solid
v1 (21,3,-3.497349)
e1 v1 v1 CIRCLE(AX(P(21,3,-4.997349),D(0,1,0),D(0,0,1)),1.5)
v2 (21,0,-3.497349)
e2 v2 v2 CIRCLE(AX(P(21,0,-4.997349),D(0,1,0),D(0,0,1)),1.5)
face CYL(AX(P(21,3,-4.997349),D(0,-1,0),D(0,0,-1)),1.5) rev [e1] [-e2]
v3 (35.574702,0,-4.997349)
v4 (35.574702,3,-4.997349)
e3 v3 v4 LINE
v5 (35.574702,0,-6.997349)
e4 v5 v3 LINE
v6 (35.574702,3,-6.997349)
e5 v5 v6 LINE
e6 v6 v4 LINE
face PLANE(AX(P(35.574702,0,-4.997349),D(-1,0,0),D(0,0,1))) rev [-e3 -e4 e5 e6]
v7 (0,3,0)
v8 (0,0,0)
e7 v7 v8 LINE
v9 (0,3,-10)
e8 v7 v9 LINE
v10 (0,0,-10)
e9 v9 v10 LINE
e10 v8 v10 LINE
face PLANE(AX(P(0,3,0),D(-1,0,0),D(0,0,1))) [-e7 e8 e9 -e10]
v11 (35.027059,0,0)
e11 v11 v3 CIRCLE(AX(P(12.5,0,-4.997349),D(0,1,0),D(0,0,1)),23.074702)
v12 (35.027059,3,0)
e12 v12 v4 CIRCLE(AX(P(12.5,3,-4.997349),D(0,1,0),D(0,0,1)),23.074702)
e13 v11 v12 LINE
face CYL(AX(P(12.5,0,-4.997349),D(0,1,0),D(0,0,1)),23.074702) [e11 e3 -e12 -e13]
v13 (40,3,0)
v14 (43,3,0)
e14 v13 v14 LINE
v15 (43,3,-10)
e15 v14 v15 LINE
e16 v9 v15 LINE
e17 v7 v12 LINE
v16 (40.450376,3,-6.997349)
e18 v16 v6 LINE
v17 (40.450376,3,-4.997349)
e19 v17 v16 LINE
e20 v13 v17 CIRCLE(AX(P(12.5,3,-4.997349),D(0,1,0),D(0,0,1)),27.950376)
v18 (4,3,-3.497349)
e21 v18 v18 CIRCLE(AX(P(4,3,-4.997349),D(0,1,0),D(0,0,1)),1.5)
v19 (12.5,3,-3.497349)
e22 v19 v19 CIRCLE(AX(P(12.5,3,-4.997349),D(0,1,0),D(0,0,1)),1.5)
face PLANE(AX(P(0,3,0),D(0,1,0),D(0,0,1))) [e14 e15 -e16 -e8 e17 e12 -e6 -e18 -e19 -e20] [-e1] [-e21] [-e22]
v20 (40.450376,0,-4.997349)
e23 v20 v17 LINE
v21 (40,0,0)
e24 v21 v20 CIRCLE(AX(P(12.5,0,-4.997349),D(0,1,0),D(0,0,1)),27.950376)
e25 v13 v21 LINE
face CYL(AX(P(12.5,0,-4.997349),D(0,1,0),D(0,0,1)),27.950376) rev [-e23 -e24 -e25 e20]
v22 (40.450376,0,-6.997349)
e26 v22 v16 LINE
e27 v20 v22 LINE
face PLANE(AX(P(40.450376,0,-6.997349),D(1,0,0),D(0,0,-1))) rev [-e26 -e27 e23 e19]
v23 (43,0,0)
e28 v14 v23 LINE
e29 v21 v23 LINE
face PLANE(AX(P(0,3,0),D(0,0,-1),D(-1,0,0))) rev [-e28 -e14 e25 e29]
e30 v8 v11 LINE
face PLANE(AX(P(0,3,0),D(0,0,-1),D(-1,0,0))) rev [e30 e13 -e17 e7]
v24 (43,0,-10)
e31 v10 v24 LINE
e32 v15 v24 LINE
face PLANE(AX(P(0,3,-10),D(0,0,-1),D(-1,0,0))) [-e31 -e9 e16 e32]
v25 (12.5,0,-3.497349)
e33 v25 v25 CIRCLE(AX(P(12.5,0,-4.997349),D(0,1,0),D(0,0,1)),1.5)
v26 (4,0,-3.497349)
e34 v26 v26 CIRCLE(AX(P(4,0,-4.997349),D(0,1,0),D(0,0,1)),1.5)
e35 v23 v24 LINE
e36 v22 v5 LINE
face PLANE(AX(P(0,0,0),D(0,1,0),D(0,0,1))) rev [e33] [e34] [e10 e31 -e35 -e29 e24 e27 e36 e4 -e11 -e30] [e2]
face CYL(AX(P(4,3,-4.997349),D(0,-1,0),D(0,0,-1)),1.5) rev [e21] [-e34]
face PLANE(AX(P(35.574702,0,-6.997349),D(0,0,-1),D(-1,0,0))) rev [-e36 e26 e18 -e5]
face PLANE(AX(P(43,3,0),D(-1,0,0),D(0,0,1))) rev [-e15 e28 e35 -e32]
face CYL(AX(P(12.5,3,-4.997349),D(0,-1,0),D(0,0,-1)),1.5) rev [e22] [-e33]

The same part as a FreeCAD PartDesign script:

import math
import FreeCAD as App
import Part
import Sketcher
from FreeCAD import Vector
Q = App.Units.Quantity

doc = App.newDocument("Part")
body = doc.addObject("PartDesign::Body", "Body")

sketch1 = body.newObject("Sketcher::SketchObject", "Sketch")
sketch1.AttachmentSupport = (doc.getObject("XZ_Plane"), [""])
sketch1.MapMode = "FlatFace"
sketch1.addGeometry([
    Part.LineSegment(Vector(0, 0, 0), Vector(36.5, 0, 0)),
    Part.LineSegment(Vector(36.5, 0, 0), Vector(36.5, -2.8, 0)),
    Part.LineSegment(Vector(36.5, -2.8, 0), Vector(40, -2.8, 0)),
    Part.LineSegment(Vector(40, -2.8, 0), Vector(40, 0, 0)),
    Part.LineSegment(Vector(40, 0, 0), Vector(43, 0, 0)),
    Part.LineSegment(Vector(43, 0, 0), Vector(43, -10, 0)),
    Part.LineSegment(Vector(43, -10, 0), Vector(0, -10, 0)),
    Part.LineSegment(Vector(0, -10, 0), Vector(0, 0, 0)),
    Part.Circle(Vector(4, -5, 0), Vector(0, 0, 1), 1.5),
    Part.Circle(Vector(12.5, -5, 0), Vector(0, 0, 1), 1.5),
    Part.Circle(Vector(21, -5, 0), Vector(0, 0, 1), 1.5),
], False)
sketch1.addConstraint([
    Sketcher.Constraint("Coincident", 0, 2, 1, 1),
    Sketcher.Constraint("Coincident", 1, 2, 2, 1),
    Sketcher.Constraint("Coincident", 2, 2, 3, 1),
    Sketcher.Constraint("Coincident", 3, 2, 4, 1),
    Sketcher.Constraint("Coincident", 4, 2, 5, 1),
    Sketcher.Constraint("Coincident", 5, 2, 6, 1),
    Sketcher.Constraint("Coincident", 6, 2, 7, 1),
    Sketcher.Constraint("Coincident", 7, 2, 0, 1),
    Sketcher.Constraint("Horizontal", 0),
    Sketcher.Constraint("Vertical", 1),
    Sketcher.Constraint("Horizontal", 2),
    Sketcher.Constraint("Vertical", 3),
    Sketcher.Constraint("Horizontal", 4),
    Sketcher.Constraint("Vertical", 5),
    Sketcher.Constraint("Horizontal", 6),
    Sketcher.Constraint("Vertical", 7),
    Sketcher.Constraint("Coincident", 7, 2, -1, 1),
    Sketcher.Constraint("Equal", 8, 9),
    Sketcher.Constraint("Equal", 9, 10),
    Sketcher.Constraint("PointOnObject", 3, 2, -1),
    Sketcher.Constraint("Horizontal", 8, 3, 9, 3),
    Sketcher.Constraint("Horizontal", 9, 3, 10, 3),
    Sketcher.Constraint("Diameter", 8, Q("3 mm")),
    Sketcher.Constraint("DistanceX", 4, 1, 4, 2, Q("3 mm")),
    Sketcher.Constraint("DistanceX", 6, 2, 6, 1, Q("43 mm")),
    Sketcher.Constraint("DistanceY", 5, 2, 5, 1, Q("10 mm")),
    Sketcher.Constraint("DistanceX", 0, 1, 0, 2, Q("36.5 mm")),
    Sketcher.Constraint("DistanceX", -1, 1, 8, 3, Q("4 mm")),
    Sketcher.Constraint("DistanceX", -1, 1, 10, 3, Q("21 mm")),
    Sketcher.Constraint("DistanceX", 9, 3, 0, 2, Q("24 mm")),
    Sketcher.Constraint("DistanceY", 1, 2, 1, 1, Q("2.820304 mm")),
    Sketcher.Constraint("DistanceY", 8, 3, -1, 1, Q("4.997349 mm")),
])
pad1 = body.newObject("PartDesign::Pad", "Pad")
pad1.Profile = sketch1
pad1.Length = 3
pad1.Reversed = True

sketch2 = body.newObject("Sketcher::SketchObject", "Sketch001")
sketch2.AttachmentSupport = (doc.getObject("XZ_Plane"), [""])
sketch2.MapMode = "FlatFace"
sketch2.AttachmentOffset = App.Placement(Vector(0, 0, -3), App.Rotation())
sketch2.addGeometry([
    Part.ArcOfCircle(Part.Circle(Vector(12.5, -5, 0), Vector(0, 0, 1), 28), math.radians(0), math.radians(10.3)),
    Part.LineSegment(Vector(40.5, -5, 0), Vector(35.6, -5, 0)),
    Part.ArcOfCircle(Part.Circle(Vector(12.5, -5, 0), Vector(0, 0, 1), 23.1), math.radians(0), math.radians(12.51)),
    Part.LineSegment(Vector(35, 0, 0), Vector(36.5, 0, 0)),
    Part.LineSegment(Vector(36.5, 0, 0), Vector(36.5, -2.8, 0)),
    Part.LineSegment(Vector(36.5, -2.8, 0), Vector(40, -2.8, 0)),
    Part.LineSegment(Vector(40, -2.8, 0), Vector(40, 0, 0)),
], False)
sketch2.addConstraint([
    Sketcher.Constraint("Coincident", 0, 1, 1, 1),
    Sketcher.Constraint("Coincident", 1, 2, 2, 1),
    Sketcher.Constraint("Coincident", 2, 2, 3, 1),
    Sketcher.Constraint("Coincident", 3, 2, 4, 1),
    Sketcher.Constraint("Coincident", 4, 2, 5, 1),
    Sketcher.Constraint("Coincident", 5, 2, 6, 1),
    Sketcher.Constraint("Coincident", 6, 2, 0, 2),
    Sketcher.Constraint("Horizontal", 1),
    Sketcher.Constraint("Horizontal", 3),
    Sketcher.Constraint("Vertical", 4),
    Sketcher.Constraint("Horizontal", 5),
    Sketcher.Constraint("Vertical", 6),
    Sketcher.Constraint("Coincident", 2, 3, 0, 3),
    Sketcher.Constraint("PointOnObject", 2, 2, -1),
    Sketcher.Constraint("PointOnObject", 6, 2, -1),
    Sketcher.Constraint("Horizontal", 2, 3, 0, 1),
    Sketcher.Constraint("DistanceX", 5, 1, 5, 2, Q("3.5 mm")),
    Sketcher.Constraint("DistanceX", -1, 1, 5, 2, Q("40 mm")),
    Sketcher.Constraint("DistanceX", 0, 3, 3, 2, Q("24 mm")),
    Sketcher.Constraint("Radius", 0, Q("27.950375 mm")),
    Sketcher.Constraint("Radius", 2, Q("23.074702 mm")),
    Sketcher.Constraint("DistanceY", 4, 2, 4, 1, Q("2.820304 mm")),
])
pocket1 = body.newObject("PartDesign::Pocket", "Pocket")
pocket1.Profile = sketch2
pocket1.Length = 3
pocket1.Reversed = True

sketch3 = body.newObject("Sketcher::SketchObject", "Sketch002")
sketch3.AttachmentSupport = (doc.getObject("XZ_Plane"), [""])
sketch3.MapMode = "FlatFace"
sketch3.AttachmentOffset = App.Placement(Vector(0, 0, -3), App.Rotation())
sketch3.addGeometry([
    Part.LineSegment(Vector(35.6, -7, 0), Vector(35.6, -5, 0)),
    Part.LineSegment(Vector(35.6, -5, 0), Vector(40.5, -5, 0)),
    Part.LineSegment(Vector(40.5, -5, 0), Vector(40.5, -7, 0)),
    Part.LineSegment(Vector(40.5, -7, 0), Vector(35.6, -7, 0)),
], False)
sketch3.addConstraint([
    Sketcher.Constraint("Coincident", 0, 2, 1, 1),
    Sketcher.Constraint("Coincident", 1, 2, 2, 1),
    Sketcher.Constraint("Coincident", 2, 2, 3, 1),
    Sketcher.Constraint("Coincident", 3, 2, 0, 1),
    Sketcher.Constraint("Vertical", 0),
    Sketcher.Constraint("Horizontal", 1),
    Sketcher.Constraint("Vertical", 2),
    Sketcher.Constraint("Horizontal", 3),
    Sketcher.Constraint("DistanceY", 0, 1, 0, 2, Q("2 mm")),
    Sketcher.Constraint("DistanceX", 1, 1, 1, 2, Q("4.875674 mm")),
    Sketcher.Constraint("DistanceY", 0, 2, -1, 1, Q("4.997349 mm")),
    Sketcher.Constraint("DistanceX", -1, 1, 0, 2, Q("35.574702 mm")),
])
pocket2 = body.newObject("PartDesign::Pocket", "Pocket001")
pocket2.Profile = sketch3
pocket2.Length = 3
pocket2.Reversed = True

doc.recompute()
